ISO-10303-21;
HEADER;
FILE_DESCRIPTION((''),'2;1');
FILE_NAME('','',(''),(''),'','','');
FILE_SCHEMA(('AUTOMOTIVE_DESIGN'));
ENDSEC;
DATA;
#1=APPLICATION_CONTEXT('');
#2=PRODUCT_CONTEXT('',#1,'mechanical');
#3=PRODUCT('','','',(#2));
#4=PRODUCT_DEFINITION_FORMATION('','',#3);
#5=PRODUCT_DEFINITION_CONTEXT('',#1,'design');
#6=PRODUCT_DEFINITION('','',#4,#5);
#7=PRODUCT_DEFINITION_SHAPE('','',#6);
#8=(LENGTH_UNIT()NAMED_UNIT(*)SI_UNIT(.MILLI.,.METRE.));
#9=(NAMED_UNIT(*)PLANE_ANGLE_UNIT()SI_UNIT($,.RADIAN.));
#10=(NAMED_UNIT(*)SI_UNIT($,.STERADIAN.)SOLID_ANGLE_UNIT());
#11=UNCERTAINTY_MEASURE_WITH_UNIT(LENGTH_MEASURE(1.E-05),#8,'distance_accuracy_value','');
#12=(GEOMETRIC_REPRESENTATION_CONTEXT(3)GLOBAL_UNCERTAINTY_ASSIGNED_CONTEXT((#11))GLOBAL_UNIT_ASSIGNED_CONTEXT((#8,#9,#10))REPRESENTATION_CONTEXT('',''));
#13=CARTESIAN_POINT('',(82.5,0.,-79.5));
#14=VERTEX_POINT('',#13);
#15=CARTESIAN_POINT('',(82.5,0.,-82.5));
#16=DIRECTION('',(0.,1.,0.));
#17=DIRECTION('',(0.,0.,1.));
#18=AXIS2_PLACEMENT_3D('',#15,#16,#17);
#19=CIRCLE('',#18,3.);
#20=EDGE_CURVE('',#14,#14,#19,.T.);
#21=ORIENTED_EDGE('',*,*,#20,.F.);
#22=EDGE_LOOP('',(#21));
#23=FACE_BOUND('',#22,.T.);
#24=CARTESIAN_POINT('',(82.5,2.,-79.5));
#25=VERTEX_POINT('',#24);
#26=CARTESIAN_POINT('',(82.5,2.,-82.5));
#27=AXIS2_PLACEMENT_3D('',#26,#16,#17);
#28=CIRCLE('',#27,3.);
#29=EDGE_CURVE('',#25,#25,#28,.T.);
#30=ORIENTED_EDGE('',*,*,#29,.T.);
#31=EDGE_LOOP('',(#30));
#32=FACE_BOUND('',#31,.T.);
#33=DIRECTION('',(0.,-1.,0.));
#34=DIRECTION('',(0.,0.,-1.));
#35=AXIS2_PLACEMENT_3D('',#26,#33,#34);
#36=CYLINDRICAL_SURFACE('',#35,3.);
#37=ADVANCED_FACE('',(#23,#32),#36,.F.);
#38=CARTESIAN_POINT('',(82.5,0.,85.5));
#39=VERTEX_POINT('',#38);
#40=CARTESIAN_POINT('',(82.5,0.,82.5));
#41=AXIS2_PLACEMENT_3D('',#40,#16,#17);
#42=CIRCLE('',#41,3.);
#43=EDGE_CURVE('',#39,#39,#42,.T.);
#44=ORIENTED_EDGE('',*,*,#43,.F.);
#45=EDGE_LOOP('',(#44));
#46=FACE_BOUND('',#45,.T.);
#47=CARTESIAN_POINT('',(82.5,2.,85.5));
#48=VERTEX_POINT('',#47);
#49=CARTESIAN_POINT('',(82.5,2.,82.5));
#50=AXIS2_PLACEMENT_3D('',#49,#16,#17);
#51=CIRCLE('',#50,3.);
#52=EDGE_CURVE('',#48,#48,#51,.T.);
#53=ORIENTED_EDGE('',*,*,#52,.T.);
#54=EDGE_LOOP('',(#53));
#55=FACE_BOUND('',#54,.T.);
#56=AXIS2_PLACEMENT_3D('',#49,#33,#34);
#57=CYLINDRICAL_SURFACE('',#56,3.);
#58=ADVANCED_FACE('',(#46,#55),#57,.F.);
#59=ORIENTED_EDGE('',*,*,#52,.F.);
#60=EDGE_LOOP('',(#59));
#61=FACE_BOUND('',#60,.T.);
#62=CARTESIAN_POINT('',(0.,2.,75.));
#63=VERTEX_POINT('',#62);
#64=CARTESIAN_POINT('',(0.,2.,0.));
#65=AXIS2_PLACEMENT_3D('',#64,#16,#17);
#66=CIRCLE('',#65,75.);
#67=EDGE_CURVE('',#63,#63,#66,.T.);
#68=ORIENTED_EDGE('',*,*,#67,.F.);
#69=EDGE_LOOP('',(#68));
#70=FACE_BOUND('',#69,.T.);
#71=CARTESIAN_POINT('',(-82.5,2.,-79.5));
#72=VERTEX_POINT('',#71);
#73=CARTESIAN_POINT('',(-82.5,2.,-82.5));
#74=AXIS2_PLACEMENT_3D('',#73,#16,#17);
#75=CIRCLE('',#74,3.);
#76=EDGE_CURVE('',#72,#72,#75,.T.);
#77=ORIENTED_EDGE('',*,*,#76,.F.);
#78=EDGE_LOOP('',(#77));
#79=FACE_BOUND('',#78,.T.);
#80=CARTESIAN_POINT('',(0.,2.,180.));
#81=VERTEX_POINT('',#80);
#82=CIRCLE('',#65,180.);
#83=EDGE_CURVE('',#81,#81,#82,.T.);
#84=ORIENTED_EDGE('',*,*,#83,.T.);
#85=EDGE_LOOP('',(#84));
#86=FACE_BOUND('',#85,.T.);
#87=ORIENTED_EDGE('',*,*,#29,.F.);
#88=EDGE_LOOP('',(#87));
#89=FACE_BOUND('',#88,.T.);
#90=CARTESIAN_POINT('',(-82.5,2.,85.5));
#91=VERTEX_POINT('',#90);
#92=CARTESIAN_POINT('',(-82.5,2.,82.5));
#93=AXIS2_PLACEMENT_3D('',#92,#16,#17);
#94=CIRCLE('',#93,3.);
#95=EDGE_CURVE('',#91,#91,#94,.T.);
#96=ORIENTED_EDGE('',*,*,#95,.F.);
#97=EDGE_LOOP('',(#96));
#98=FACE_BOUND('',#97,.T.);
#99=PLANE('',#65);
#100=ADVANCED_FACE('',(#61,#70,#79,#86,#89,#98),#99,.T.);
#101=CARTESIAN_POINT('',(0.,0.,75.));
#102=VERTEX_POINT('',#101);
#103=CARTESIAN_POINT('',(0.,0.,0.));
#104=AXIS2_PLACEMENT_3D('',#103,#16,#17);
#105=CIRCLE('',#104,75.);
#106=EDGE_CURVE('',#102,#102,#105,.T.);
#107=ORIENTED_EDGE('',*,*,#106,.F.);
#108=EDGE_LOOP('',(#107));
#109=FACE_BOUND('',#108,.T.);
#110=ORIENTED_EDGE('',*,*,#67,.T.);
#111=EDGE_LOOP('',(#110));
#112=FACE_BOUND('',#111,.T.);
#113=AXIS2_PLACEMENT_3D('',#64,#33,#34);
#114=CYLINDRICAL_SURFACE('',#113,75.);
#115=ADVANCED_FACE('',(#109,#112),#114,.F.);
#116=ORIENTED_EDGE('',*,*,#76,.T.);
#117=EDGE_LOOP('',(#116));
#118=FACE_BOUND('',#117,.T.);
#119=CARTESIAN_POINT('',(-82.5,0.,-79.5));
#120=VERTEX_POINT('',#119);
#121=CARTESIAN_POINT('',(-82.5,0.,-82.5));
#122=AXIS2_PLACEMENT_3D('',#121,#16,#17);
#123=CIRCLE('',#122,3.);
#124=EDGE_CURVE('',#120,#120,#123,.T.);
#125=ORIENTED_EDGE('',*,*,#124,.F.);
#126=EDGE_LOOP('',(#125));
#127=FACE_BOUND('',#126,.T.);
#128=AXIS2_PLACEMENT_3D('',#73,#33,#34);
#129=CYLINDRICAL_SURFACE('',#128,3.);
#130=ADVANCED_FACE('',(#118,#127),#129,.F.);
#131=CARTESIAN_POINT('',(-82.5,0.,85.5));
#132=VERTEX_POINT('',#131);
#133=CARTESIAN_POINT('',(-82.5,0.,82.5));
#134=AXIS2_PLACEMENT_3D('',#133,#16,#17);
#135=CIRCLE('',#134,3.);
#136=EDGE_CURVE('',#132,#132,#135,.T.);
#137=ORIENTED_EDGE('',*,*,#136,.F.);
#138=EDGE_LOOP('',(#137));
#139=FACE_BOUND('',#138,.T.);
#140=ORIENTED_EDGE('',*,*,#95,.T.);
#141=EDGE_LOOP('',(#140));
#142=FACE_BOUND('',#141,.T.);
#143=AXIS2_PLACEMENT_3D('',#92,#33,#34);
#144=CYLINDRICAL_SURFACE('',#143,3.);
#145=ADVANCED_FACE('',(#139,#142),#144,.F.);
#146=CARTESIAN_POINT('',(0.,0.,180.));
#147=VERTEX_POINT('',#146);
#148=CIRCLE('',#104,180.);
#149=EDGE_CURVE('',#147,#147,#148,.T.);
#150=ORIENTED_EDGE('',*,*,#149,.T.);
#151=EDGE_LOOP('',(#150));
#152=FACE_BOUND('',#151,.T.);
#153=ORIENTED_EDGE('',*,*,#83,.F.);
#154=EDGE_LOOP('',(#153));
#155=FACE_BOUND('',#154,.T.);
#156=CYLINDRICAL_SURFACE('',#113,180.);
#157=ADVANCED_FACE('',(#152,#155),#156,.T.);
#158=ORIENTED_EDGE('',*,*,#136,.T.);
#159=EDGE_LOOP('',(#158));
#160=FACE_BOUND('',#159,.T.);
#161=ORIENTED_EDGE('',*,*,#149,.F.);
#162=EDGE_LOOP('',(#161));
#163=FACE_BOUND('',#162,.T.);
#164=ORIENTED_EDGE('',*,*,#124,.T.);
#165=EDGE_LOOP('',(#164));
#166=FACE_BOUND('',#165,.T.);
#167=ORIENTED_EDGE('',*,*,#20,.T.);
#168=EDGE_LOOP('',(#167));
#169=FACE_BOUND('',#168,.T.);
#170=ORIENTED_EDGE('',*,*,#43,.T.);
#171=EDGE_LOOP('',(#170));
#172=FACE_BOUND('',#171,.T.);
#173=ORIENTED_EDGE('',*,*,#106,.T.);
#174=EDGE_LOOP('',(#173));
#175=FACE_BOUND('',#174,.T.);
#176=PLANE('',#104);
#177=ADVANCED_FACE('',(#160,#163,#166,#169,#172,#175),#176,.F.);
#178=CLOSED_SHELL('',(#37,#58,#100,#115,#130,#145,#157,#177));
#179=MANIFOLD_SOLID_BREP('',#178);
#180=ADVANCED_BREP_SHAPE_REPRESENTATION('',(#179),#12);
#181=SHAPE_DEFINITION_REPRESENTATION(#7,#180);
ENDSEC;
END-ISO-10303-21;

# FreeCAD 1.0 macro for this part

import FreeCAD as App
import Part
import Sketcher
Q = App.Units.Quantity

doc = App.newDocument("Part")
params = doc.addObject("Spreadsheet::Sheet", "Params")
for row, (alias, value) in enumerate([
    ("sketch1_diameter", "360 mm"),
    ("sketch1_diameter2", "6 mm"),
    ("sketch1_diameter3", "150 mm"),
    ("pad1_length", "2 mm"),
], start=1):
    params.set(f"A{row}", alias)
    params.set(f"B{row}", "=" + value)
    params.setAlias(f"B{row}", alias)

body = doc.addObject("PartDesign::Body", "Body")

# Sketch on XZ plane
sketch1 = body.newObject("Sketcher::SketchObject", "Sketch")
sketch1.AttachmentSupport = (doc.getObject("XZ_Plane"), [""])
sketch1.MapMode = "FlatFace"
sketch1.addGeometry([
    Part.Circle(App.Vector(0, 0, 0), App.Vector(0, 0, 1), 180),  # 0
    Part.Circle(App.Vector(-82.5, 82.5, 0), App.Vector(0, 0, 1), 3),  # 1
    Part.Circle(App.Vector(82.5, 82.5, 0), App.Vector(0, 0, 1), 3),  # 2
    Part.Circle(App.Vector(-82.5, -82.5, 0), App.Vector(0, 0, 1), 3),  # 3
    Part.Circle(App.Vector(0, 0, 0), App.Vector(0, 0, 1), 75),  # 4
    Part.Circle(App.Vector(82.5, -82.5, 0), App.Vector(0, 0, 1), 3),  # 5
], False)
sketch1.addConstraint([
    Sketcher.Constraint("Coincident", 0, 3, -1, 1),
    Sketcher.Constraint("Coincident", 4, 3, -1, 1),
    Sketcher.Constraint("Equal", 1, 2),
    Sketcher.Constraint("Equal", 2, 3),
    Sketcher.Constraint("Equal", 3, 5),
    Sketcher.Constraint("Symmetric", 2, 3, 3, 3, -1, 1),
    Sketcher.Constraint("Symmetric", 1, 3, 5, 3, -1, 1),
    Sketcher.Constraint("Symmetric", 1, 3, 2, 3, -2),
    Sketcher.Constraint("Diameter", 0, Q("360 mm")),
    Sketcher.Constraint("Diameter", 1, Q("6 mm")),
    Sketcher.Constraint("Diameter", 4, Q("150 mm")),
    Sketcher.Constraint("DistanceX", 1, 3, 2, 3, Q("165 mm")),
    Sketcher.Constraint("DistanceY", 3, 3, 1, 3, Q("165 mm")),
])
sketch1.setExpression("Constraints[8]", "Params.sketch1_diameter")
sketch1.setExpression("Constraints[9]", "Params.sketch1_diameter2")
sketch1.setExpression("Constraints[10]", "Params.sketch1_diameter3")
pad1 = body.newObject("PartDesign::Pad", "Pad")
pad1.Profile = sketch1
pad1.setExpression("Length", "Params.pad1_length")
pad1.Reversed = True

doc.recompute()
